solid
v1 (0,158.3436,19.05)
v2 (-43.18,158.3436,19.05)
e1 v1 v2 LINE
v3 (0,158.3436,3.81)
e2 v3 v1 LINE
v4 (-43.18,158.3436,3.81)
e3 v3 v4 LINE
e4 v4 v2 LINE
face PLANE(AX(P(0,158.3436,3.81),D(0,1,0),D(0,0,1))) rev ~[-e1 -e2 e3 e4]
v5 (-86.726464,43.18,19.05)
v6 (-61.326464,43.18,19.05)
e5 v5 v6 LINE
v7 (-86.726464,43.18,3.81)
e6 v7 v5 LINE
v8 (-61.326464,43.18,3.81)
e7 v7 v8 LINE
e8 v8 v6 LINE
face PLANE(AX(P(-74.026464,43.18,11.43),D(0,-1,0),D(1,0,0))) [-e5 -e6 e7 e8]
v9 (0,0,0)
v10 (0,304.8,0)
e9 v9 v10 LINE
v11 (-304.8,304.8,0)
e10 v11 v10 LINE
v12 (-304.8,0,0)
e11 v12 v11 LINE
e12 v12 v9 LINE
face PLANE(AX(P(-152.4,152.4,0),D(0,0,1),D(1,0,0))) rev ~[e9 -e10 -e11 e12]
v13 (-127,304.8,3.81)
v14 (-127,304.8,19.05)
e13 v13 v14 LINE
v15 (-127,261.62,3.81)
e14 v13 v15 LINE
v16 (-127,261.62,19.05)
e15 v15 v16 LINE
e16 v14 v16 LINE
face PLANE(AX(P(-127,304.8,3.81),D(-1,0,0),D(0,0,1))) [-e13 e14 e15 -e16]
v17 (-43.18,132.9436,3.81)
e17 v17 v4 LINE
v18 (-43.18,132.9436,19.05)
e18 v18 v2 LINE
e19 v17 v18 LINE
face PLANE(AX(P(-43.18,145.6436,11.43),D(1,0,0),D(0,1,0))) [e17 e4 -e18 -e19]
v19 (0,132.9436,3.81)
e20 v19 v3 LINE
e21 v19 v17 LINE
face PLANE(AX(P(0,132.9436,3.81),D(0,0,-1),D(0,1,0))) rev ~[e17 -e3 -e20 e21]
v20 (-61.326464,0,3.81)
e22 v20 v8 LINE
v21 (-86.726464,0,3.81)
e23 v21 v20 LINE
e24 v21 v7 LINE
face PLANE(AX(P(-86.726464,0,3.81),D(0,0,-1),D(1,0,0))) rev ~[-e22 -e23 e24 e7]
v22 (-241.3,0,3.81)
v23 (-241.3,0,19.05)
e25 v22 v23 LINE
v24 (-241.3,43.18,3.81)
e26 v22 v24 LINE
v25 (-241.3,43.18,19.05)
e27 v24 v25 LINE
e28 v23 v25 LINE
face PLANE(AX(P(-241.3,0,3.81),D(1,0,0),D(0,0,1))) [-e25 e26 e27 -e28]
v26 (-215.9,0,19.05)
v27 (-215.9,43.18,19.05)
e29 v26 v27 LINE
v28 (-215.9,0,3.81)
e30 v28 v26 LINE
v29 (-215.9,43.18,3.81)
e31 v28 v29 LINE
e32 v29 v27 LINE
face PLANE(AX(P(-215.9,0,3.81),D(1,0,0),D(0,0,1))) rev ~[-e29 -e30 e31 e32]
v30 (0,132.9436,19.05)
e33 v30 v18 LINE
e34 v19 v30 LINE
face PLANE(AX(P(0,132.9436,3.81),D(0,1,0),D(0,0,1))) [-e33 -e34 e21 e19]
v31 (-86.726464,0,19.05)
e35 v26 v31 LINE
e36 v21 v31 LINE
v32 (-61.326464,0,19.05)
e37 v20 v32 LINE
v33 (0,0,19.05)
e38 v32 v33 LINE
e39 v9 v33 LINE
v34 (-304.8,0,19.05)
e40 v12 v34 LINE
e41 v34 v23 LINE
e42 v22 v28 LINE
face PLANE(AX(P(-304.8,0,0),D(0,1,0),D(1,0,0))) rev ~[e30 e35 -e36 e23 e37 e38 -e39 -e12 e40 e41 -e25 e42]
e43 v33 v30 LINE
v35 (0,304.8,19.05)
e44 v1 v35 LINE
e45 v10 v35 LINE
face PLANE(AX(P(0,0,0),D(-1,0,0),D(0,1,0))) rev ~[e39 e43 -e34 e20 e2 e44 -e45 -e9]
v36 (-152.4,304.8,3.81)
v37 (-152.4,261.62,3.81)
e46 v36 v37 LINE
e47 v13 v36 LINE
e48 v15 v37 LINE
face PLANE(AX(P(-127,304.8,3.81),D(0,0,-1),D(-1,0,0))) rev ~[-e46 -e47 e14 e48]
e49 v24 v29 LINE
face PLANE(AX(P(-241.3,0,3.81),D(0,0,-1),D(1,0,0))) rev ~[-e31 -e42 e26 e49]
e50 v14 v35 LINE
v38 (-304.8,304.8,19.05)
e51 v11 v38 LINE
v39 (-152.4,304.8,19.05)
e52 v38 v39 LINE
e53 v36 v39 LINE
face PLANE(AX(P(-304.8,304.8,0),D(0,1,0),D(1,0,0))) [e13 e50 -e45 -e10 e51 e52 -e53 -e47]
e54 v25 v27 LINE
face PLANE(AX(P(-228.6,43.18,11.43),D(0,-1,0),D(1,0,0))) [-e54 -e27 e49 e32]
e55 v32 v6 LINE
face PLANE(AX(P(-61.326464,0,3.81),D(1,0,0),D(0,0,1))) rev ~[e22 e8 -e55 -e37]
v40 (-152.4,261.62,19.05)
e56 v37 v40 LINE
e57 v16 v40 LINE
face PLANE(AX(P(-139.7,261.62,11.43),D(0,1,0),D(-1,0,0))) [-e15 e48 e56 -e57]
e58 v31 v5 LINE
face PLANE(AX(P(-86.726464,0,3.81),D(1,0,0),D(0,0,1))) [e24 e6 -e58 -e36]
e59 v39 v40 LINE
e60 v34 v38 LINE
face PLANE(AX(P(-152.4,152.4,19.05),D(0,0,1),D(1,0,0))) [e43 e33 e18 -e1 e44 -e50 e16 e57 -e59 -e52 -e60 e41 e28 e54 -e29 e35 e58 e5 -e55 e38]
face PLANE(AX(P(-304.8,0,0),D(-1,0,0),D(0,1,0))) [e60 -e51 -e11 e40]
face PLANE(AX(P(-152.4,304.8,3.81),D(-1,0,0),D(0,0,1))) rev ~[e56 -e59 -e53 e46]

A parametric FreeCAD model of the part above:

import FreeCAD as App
import Part
import Sketcher
Q = App.Units.Quantity


def add_polygon(sketch, points):
    """Adds a closed chain of lines whose ends are joined by coincident constraints."""
    first, n = sketch.GeometryCount, len(points)
    for a, b in zip(points, points[1:] + points[:1]):
        sketch.addGeometry(Part.LineSegment(App.Vector(*a, 0), App.Vector(*b, 0)), False)
    for i in range(n):
        sketch.addConstraint(Sketcher.Constraint("Coincident", first + i, 2, first + (i + 1) % n, 1))

doc = App.newDocument("Part")
body = doc.addObject("PartDesign::Body", "Body")

# Sketch on XY plane
sketch1 = body.newObject("Sketcher::SketchObject", "Sketch")
sketch1.AttachmentSupport = (doc.getObject("XY_Plane"), [""])
sketch1.MapMode = "FlatFace"
add_polygon(sketch1, [(-304.8, 304.8), (-304.8, 0), (0, 0), (0, 304.8)])  # lines 0-3
sketch1.addConstraint([
    Sketcher.Constraint("Vertical", 0),
    Sketcher.Constraint("Horizontal", 1),
    Sketcher.Constraint("Vertical", 2),
    Sketcher.Constraint("Horizontal", 3),
    Sketcher.Constraint("Coincident", 1, 2, -1, 1),
    Sketcher.Constraint("Equal", 3, 0),
    Sketcher.Constraint("DistanceX", 1, 1, 1, 2, Q("12 in")),
])
pad1 = body.newObject("PartDesign::Pad", "Pad")
pad1.Profile = sketch1
pad1.Length = Q("0.75 in")

# Sketch on XZ plane
sketch2 = body.newObject("Sketcher::SketchObject", "Sketch001")
sketch2.AttachmentSupport = (doc.getObject("XZ_Plane"), [""])
sketch2.MapMode = "FlatFace"
add_polygon(sketch2, [(-241.3, 19.05), (-241.3, 3.81), (-215.9, 3.81), (-215.9, 19.05)])  # lines 0-3
sketch2.addConstraint([
    Sketcher.Constraint("Vertical", 0),
    Sketcher.Constraint("Horizontal", 1),
    Sketcher.Constraint("Vertical", 2),
    Sketcher.Constraint("Horizontal", 3),
    Sketcher.Constraint("DistanceX", 1, 1, 1, 2, Q("1 in")),
    Sketcher.Constraint("DistanceY", 0, 2, 0, 1, Q("0.6 in")),
    Sketcher.Constraint("DistanceX", 0, 2, -1, 1, Q("9.5 in")),
    Sketcher.Constraint("DistanceY", -1, 1, 0, 2, Q("0.15 in")),
])
pocket1 = body.newObject("PartDesign::Pocket", "Pocket")
pocket1.Profile = sketch2
pocket1.Length = Q("1.7 in")

# Sketch on XZ plane
sketch3 = body.newObject("Sketcher::SketchObject", "Sketch002")
sketch3.AttachmentSupport = (doc.getObject("XZ_Plane"), [""])
sketch3.MapMode = "FlatFace"
add_polygon(sketch3, [(-86.726464, 19.05), (-86.726464, 3.81), (-61.326464, 3.81), (-61.326464, 19.05)])  # lines 0-3
sketch3.addConstraint([
    Sketcher.Constraint("Vertical", 0),
    Sketcher.Constraint("Horizontal", 1),
    Sketcher.Constraint("Vertical", 2),
    Sketcher.Constraint("Horizontal", 3),
    Sketcher.Constraint("DistanceX", 1, 1, 1, 2, Q("1 in")),
    Sketcher.Constraint("DistanceY", 0, 2, 0, 1, Q("0.6 in")),
    Sketcher.Constraint("DistanceY", -1, 1, 0, 2, Q("0.15 in")),
    Sketcher.Constraint("DistanceX", 0, 2, -1, 1, Q("86.726464 mm")),
])
pocket2 = body.newObject("PartDesign::Pocket", "Pocket001")
pocket2.Profile = sketch3
pocket2.Length = Q("1.7 in")

# Sketch on XZ plane
sketch4 = body.newObject("Sketcher::SketchObject", "Sketch003")
sketch4.AttachmentSupport = (doc.getObject("XZ_Plane"), [""])
sketch4.MapMode = "FlatFace"
sketch4.AttachmentOffset = App.Placement(App.Vector(0, 0, -12 * 25.4), App.Rotation())
add_polygon(sketch4, [(-127, 19.05), (-127, 3.81), (-152.4, 3.81), (-152.4, 19.05)])  # lines 0-3
sketch4.addConstraint([
    Sketcher.Constraint("Vertical", 0),
    Sketcher.Constraint("Horizontal", 1),
    Sketcher.Constraint("Vertical", 2),
    Sketcher.Constraint("Horizontal", 3),
    Sketcher.Constraint("DistanceX", 1, 2, 1, 1, Q("1 in")),
    Sketcher.Constraint("DistanceY", 0, 2, 0, 1, Q("0.6 in")),
    Sketcher.Constraint("DistanceX", 0, 2, -1, 1, Q("5 in")),
    Sketcher.Constraint("DistanceY", -1, 1, 0, 2, Q("0.15 in")),
])
pocket3 = body.newObject("PartDesign::Pocket", "Pocket002")
pocket3.Profile = sketch4
pocket3.Length = Q("1.7 in")
pocket3.Reversed = True

# Sketch on YZ plane
sketch5 = body.newObject("Sketcher::SketchObject", "Sketch004")
sketch5.AttachmentSupport = (doc.getObject("YZ_Plane"), [""])
sketch5.MapMode = "FlatFace"
add_polygon(sketch5, [(132.9436, 19.05), (132.9436, 3.81), (158.3436, 3.81), (158.3436, 19.05)])  # lines 0-3
sketch5.addConstraint([
    Sketcher.Constraint("Vertical", 0),
    Sketcher.Constraint("Horizontal", 1),
    Sketcher.Constraint("Vertical", 2),
    Sketcher.Constraint("Horizontal", 3),
    Sketcher.Constraint("DistanceX", 1, 1, 1, 2, Q("1 in")),
    Sketcher.Constraint("DistanceY", 0, 2, 0, 1, Q("0.6 in")),
    Sketcher.Constraint("DistanceY", -1, 1, 0, 2, Q("0.15 in")),
    Sketcher.Constraint("DistanceX", -1, 1, 0, 2, Q("5.234 in")),
])
pocket4 = body.newObject("PartDesign::Pocket", "Pocket003")
pocket4.Profile = sketch5
pocket4.Length = Q("1.7 in")

doc.recompute()
